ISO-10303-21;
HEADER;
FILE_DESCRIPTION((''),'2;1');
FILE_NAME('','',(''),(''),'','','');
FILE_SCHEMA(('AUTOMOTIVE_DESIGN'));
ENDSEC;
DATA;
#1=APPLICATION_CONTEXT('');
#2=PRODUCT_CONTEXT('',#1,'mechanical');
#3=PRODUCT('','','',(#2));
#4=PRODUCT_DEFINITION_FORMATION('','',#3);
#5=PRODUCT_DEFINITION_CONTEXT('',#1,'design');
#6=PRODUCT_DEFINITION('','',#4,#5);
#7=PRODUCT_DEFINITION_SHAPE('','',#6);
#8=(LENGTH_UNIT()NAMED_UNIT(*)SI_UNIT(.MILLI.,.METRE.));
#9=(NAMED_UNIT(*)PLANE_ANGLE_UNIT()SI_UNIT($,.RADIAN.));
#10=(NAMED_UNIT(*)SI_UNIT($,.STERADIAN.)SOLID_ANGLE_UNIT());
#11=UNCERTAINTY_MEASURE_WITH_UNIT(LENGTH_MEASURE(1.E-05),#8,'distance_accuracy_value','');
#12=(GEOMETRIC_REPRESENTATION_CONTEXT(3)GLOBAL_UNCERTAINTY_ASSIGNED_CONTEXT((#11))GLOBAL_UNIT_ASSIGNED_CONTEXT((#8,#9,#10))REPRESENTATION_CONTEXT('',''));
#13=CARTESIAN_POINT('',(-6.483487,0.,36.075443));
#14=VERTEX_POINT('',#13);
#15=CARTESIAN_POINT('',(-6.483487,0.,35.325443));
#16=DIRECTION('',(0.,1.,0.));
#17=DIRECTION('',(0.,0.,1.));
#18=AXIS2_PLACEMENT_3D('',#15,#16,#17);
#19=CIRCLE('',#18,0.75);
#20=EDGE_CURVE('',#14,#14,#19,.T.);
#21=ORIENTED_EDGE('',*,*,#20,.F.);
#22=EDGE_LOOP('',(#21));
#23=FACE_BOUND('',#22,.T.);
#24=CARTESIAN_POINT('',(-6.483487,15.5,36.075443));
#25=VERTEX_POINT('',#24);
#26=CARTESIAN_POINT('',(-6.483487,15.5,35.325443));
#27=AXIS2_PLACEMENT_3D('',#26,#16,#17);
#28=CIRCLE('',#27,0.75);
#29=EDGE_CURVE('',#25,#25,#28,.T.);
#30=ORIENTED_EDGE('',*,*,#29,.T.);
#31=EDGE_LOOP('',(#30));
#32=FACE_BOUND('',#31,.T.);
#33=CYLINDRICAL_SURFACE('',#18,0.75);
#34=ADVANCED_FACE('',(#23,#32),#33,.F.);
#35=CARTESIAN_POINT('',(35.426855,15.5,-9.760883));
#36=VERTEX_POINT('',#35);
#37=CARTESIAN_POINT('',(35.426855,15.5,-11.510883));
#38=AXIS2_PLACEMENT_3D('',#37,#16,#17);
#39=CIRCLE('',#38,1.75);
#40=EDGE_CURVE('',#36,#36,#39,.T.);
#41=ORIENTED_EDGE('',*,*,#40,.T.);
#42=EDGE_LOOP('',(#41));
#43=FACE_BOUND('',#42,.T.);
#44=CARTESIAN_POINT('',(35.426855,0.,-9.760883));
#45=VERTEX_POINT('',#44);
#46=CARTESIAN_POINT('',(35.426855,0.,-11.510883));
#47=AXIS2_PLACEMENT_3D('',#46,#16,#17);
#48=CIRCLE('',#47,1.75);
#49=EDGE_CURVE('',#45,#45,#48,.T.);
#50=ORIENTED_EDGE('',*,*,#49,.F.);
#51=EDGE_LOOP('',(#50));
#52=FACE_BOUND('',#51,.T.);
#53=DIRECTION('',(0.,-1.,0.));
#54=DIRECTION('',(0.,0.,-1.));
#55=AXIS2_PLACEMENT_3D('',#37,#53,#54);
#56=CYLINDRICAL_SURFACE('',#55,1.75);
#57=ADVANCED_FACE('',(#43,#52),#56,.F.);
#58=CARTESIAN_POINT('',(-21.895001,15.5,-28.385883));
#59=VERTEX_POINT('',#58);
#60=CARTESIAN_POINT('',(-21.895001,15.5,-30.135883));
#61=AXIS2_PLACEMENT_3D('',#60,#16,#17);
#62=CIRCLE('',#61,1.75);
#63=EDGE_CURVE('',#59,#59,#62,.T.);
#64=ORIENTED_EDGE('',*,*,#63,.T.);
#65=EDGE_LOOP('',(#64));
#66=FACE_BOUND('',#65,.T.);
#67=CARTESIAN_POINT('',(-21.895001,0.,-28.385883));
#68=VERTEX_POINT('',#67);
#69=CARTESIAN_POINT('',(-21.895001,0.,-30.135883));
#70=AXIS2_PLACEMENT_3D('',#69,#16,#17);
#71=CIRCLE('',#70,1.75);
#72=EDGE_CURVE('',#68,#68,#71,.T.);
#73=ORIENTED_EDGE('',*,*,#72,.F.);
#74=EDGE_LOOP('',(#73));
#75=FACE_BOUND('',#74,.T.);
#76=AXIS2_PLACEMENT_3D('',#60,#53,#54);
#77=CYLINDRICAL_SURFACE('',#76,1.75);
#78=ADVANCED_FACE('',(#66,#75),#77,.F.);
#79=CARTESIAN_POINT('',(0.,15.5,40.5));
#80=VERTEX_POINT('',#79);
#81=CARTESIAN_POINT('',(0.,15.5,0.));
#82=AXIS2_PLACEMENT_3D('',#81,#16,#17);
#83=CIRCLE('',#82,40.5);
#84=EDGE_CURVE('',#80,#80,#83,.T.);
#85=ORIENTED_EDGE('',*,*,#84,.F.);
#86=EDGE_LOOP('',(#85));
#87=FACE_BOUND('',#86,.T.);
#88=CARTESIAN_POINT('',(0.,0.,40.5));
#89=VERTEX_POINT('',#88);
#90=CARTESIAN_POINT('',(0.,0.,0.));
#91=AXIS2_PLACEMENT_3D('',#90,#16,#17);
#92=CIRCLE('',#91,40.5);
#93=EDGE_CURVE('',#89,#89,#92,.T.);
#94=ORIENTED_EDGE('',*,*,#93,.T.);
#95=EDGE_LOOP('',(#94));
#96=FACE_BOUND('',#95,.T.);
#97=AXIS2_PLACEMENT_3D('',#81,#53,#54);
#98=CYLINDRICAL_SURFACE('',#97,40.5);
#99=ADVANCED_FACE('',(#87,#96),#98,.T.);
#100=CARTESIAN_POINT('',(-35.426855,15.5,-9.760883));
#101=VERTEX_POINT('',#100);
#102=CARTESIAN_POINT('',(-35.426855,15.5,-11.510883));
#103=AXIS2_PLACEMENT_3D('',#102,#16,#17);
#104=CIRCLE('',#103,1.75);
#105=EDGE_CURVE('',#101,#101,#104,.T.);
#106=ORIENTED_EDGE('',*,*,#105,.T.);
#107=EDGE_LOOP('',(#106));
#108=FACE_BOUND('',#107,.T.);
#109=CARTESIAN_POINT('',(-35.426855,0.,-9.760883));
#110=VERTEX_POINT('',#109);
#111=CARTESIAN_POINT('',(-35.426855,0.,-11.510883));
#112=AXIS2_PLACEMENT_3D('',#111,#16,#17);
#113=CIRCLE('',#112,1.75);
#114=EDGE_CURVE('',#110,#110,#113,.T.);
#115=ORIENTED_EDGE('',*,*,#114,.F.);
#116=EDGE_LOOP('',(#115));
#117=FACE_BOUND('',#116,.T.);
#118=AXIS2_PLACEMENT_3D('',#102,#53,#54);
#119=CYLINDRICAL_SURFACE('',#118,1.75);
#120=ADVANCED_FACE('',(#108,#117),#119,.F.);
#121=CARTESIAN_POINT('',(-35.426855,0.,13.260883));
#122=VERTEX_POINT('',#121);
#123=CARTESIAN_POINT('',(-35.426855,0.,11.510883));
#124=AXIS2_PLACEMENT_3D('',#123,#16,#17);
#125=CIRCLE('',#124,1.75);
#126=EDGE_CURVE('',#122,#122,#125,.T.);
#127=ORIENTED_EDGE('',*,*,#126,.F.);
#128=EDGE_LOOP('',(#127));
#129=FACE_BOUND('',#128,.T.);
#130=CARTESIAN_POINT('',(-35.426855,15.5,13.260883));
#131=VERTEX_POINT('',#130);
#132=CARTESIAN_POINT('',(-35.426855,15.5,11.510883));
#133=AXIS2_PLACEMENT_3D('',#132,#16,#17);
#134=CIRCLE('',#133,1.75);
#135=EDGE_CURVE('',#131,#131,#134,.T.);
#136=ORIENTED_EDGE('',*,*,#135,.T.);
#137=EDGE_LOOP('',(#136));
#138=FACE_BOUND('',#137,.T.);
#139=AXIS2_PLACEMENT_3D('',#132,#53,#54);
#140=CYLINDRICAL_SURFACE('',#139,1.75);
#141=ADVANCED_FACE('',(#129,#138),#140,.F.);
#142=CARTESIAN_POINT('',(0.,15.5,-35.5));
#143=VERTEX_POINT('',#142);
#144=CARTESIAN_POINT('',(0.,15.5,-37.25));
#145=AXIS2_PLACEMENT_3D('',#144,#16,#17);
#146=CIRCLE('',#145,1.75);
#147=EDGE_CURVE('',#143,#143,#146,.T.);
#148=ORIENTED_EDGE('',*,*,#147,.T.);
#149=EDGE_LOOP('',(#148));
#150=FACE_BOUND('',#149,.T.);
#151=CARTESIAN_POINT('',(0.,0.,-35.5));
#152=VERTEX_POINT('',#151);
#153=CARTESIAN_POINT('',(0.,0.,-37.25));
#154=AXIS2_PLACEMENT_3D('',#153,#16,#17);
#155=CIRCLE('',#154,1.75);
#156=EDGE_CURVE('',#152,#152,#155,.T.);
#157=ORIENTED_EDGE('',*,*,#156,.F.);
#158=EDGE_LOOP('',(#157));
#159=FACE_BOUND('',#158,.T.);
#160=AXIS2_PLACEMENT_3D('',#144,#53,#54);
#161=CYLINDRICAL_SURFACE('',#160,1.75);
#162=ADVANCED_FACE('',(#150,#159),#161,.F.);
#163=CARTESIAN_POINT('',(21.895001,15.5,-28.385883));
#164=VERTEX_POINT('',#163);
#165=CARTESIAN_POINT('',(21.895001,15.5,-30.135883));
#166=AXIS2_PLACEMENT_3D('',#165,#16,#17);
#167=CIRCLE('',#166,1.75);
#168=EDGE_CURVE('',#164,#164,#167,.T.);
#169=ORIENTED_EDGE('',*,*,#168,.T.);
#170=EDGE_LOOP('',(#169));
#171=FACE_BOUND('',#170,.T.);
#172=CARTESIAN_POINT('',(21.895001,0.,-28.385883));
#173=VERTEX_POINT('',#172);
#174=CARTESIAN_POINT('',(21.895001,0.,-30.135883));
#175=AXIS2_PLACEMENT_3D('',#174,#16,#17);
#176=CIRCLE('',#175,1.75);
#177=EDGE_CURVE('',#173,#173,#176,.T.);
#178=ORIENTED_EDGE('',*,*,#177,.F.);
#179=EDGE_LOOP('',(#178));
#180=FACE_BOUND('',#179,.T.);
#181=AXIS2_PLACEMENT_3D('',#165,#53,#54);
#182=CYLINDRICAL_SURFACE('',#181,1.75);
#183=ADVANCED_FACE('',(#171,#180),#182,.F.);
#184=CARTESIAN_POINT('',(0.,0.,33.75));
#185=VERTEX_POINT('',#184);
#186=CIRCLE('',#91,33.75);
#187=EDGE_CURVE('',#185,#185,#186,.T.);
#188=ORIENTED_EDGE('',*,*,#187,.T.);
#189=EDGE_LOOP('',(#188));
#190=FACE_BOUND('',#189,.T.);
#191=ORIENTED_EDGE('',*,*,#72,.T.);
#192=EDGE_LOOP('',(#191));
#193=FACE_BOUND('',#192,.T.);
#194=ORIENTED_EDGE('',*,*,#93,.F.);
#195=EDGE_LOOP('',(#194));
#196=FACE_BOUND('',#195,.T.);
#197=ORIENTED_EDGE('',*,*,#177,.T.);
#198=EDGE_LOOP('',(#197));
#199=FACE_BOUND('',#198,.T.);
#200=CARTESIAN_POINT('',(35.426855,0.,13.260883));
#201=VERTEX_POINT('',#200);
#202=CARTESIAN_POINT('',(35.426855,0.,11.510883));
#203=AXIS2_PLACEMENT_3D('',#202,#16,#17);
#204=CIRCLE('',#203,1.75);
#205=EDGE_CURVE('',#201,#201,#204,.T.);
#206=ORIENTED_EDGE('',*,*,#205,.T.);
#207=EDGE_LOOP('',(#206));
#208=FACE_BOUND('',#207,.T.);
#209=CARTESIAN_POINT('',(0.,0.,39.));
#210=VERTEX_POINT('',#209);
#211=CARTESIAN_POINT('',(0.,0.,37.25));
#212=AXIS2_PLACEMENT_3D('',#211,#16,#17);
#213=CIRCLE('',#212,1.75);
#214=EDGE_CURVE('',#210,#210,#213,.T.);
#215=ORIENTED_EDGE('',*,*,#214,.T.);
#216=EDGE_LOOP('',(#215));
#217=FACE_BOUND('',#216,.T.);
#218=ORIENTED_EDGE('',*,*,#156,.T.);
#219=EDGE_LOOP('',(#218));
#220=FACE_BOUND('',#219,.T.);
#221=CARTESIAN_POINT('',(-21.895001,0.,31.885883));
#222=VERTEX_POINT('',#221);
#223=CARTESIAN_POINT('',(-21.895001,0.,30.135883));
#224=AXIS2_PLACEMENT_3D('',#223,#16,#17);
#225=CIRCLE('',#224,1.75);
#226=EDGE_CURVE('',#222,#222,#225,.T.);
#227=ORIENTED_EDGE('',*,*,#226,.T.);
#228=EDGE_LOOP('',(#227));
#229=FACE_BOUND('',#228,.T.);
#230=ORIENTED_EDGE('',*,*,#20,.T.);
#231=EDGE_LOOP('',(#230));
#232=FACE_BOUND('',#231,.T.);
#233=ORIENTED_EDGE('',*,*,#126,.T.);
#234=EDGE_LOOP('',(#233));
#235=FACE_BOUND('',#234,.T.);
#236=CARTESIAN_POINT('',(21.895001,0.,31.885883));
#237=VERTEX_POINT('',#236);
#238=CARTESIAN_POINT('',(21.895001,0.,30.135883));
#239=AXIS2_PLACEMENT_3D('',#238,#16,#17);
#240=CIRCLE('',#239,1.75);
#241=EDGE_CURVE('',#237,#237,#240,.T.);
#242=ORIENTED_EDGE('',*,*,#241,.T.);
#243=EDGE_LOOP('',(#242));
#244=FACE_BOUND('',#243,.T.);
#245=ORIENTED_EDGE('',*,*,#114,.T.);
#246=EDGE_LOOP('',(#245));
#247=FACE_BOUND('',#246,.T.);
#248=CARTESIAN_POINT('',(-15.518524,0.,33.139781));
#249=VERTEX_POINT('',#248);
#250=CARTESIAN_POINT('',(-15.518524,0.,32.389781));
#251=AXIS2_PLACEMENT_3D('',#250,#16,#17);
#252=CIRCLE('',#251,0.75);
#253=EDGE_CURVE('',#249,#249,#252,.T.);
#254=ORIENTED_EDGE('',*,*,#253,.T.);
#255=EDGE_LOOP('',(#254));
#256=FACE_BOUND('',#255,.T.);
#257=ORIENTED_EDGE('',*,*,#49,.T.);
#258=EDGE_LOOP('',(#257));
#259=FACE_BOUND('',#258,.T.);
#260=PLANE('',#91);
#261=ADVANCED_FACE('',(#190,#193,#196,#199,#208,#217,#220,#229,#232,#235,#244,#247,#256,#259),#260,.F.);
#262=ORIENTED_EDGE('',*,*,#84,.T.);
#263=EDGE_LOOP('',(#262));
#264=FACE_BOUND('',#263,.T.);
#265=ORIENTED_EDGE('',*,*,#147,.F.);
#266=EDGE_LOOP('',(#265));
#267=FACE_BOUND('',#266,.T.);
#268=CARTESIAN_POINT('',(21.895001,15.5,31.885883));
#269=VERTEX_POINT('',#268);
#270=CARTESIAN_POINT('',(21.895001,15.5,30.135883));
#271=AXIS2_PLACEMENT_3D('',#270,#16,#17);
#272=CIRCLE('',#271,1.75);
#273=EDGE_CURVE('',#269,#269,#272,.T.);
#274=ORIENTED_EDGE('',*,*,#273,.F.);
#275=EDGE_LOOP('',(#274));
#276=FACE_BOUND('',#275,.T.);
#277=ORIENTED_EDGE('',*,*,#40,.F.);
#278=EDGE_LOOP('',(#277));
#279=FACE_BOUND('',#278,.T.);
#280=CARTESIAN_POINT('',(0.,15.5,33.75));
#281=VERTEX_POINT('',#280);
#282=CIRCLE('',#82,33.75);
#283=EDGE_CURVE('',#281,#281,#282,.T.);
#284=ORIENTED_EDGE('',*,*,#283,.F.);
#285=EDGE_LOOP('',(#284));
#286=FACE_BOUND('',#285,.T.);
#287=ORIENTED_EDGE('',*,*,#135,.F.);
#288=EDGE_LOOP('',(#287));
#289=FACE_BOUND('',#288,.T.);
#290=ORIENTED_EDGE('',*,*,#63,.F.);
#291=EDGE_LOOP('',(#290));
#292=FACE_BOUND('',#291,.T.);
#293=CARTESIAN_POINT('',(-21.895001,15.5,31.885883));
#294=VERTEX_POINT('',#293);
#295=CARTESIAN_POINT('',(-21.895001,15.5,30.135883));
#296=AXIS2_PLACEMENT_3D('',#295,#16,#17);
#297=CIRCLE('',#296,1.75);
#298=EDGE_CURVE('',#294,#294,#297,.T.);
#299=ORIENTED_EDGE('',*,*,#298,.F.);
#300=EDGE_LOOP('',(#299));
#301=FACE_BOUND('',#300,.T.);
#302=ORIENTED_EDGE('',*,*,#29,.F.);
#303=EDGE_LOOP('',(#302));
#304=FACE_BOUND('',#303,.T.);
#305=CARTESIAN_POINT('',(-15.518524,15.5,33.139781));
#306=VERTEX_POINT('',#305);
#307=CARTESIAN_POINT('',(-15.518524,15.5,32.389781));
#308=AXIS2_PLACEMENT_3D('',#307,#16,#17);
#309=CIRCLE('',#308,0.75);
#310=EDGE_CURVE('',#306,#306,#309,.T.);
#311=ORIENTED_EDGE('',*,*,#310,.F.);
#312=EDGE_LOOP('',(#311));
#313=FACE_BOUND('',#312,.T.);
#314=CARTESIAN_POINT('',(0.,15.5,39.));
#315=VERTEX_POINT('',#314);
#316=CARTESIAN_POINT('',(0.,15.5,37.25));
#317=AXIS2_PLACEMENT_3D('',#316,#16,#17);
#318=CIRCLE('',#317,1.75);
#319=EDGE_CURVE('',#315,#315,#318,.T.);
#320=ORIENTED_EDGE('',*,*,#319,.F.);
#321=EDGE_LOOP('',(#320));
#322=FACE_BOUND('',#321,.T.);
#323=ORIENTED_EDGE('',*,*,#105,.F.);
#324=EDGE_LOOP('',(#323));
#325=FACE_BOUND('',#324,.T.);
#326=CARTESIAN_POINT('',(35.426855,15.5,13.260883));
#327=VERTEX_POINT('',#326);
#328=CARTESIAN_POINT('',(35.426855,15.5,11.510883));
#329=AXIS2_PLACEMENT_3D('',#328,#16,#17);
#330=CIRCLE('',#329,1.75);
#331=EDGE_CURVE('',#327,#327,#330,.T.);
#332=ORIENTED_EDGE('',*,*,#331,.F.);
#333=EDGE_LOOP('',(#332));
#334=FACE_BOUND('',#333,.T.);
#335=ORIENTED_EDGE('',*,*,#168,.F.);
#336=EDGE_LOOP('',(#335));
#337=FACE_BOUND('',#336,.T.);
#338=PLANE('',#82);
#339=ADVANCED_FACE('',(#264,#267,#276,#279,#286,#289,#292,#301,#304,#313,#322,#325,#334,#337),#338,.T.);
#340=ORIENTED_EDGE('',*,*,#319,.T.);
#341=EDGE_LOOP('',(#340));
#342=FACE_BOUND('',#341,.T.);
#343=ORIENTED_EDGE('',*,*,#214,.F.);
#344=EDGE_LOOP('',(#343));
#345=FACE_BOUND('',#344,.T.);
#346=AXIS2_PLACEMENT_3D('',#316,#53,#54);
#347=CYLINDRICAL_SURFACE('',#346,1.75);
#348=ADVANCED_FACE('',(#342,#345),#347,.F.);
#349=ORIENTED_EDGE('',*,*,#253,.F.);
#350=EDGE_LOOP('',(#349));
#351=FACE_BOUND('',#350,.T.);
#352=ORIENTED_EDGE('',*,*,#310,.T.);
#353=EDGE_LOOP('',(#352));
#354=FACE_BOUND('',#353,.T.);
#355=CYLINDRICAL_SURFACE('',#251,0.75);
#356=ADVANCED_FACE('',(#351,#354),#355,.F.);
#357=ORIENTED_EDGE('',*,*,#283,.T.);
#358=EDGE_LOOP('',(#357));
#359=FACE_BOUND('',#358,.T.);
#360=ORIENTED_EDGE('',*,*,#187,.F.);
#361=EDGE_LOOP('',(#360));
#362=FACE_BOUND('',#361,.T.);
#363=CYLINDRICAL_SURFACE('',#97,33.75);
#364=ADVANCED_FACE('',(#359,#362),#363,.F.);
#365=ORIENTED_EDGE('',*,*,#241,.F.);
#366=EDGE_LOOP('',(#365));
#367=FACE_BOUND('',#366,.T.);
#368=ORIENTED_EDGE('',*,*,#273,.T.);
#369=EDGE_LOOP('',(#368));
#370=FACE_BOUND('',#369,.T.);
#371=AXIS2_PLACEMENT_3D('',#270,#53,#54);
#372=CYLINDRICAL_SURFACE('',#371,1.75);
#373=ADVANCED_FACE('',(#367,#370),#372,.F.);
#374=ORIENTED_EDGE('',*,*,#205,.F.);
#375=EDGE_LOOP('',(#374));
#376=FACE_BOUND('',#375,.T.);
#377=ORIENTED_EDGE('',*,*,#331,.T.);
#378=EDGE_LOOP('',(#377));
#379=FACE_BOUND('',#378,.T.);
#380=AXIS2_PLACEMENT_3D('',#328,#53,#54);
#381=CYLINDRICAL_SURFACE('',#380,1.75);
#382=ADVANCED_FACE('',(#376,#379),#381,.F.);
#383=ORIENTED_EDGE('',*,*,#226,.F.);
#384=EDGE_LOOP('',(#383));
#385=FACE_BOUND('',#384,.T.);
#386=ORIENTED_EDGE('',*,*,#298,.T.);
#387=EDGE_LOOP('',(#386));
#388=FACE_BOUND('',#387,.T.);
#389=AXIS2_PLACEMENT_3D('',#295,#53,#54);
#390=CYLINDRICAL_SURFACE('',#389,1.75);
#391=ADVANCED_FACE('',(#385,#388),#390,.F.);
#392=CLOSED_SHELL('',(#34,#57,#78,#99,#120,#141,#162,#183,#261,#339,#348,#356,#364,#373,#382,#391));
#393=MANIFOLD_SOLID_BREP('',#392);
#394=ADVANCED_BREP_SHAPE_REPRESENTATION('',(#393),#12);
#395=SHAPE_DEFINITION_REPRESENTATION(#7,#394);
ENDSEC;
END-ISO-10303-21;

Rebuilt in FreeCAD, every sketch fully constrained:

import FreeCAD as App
import Part
import Sketcher
Q = App.Units.Quantity

doc = App.newDocument("Part")
body = doc.addObject("PartDesign::Body", "Body")

sketch1 = body.newObject("Sketcher::SketchObject", "Sketch")
sketch1.AttachmentSupport = (doc.getObject("XZ_Plane"), [""])
sketch1.MapMode = "FlatFace"
sketch1.addGeometry([
    Part.Circle(App.Vector(0, 0, 0), App.Vector(0, 0, 1), 40.5),
    Part.Circle(App.Vector(-21.9, -30.1, 0), App.Vector(0, 0, 1), 1.8),
    Part.Circle(App.Vector(-35.4, -11.5, 0), App.Vector(0, 0, 1), 1.8),
    Part.Circle(App.Vector(0, -37.2, 0), App.Vector(0, 0, 1), 1.8),
    Part.Circle(App.Vector(-35.4, 11.5, 0), App.Vector(0, 0, 1), 1.8),
    Part.Circle(App.Vector(-21.9, 30.1, 0), App.Vector(0, 0, 1), 1.8),
    Part.Circle(App.Vector(21.9, -30.1, 0), App.Vector(0, 0, 1), 1.8),
    Part.Circle(App.Vector(35.4, -11.5, 0), App.Vector(0, 0, 1), 1.8),
    Part.Circle(App.Vector(0, 0, 0), App.Vector(0, 0, 1), 33.8),
    Part.Circle(App.Vector(0, 37.2, 0), App.Vector(0, 0, 1), 1.8),
    Part.Circle(App.Vector(35.4, 11.5, 0), App.Vector(0, 0, 1), 1.8),
    Part.Circle(App.Vector(21.9, 30.1, 0), App.Vector(0, 0, 1), 1.8),
], False)
sketch1.addConstraint([
    Sketcher.Constraint("Coincident", 0, 3, -1, 1),
    Sketcher.Constraint("Coincident", 8, 3, -1, 1),
    Sketcher.Constraint("Equal", 1, 2),
    Sketcher.Constraint("Equal", 2, 3),
    Sketcher.Constraint("Equal", 3, 4),
    Sketcher.Constraint("Equal", 4, 5),
    Sketcher.Constraint("Equal", 5, 6),
    Sketcher.Constraint("Equal", 6, 7),
    Sketcher.Constraint("Equal", 7, 9),
    Sketcher.Constraint("Equal", 9, 10),
    Sketcher.Constraint("Equal", 10, 11),
    Sketcher.Constraint("Symmetric", 5, 3, 6, 3, -1, 1),
    Sketcher.Constraint("Symmetric", 4, 3, 7, 3, -1, 1),
    Sketcher.Constraint("Symmetric", 3, 3, 9, 3, -1, 1),
    Sketcher.Constraint("Symmetric", 2, 3, 10, 3, -1, 1),
    Sketcher.Constraint("Symmetric", 1, 3, 11, 3, -1, 1),
    Sketcher.Constraint("Symmetric", 1, 3, 6, 3, -2),
    Sketcher.Constraint("Symmetric", 2, 3, 7, 3, -2),
    Sketcher.Constraint("PointOnObject", 3, 3, -2),
    Sketcher.Constraint("Diameter", 0, Q("81 mm")),
    Sketcher.Constraint("Diameter", 1, Q("3.5 mm")),
    Sketcher.Constraint("Diameter", 8, Q("67.5 mm")),
    Sketcher.Constraint("DistanceY", 3, 3, -1, 1, Q("37.25 mm")),
    Sketcher.Constraint("DistanceX", 1, 3, 6, 3, Q("43.790001 mm")),
    Sketcher.Constraint("DistanceY", 1, 3, 2, 3, Q("18.625 mm")),
    Sketcher.Constraint("DistanceY", 1, 3, -1, 1, Q("30.135883 mm")),
    Sketcher.Constraint("DistanceX", 2, 3, -1, 1, Q("35.426855 mm")),
])
pad1 = body.newObject("PartDesign::Pad", "Pad")
pad1.Profile = sketch1
pad1.Length = 15.5
pad1.Reversed = True

sketch2 = body.newObject("Sketcher::SketchObject", "Sketch001")
sketch2.AttachmentSupport = (doc.getObject("XZ_Plane"), [""])
sketch2.MapMode = "FlatFace"
sketch2.AttachmentOffset = App.Placement(App.Vector(0, 0, -15.5), App.Rotation())
sketch2.addGeometry([
    Part.Circle(App.Vector(-6.5, 35.3, 0), App.Vector(0, 0, 1), 0.8),
    Part.Circle(App.Vector(-15.5, 32.4, 0), App.Vector(0, 0, 1), 0.8),
], False)
sketch2.addConstraint([
    Sketcher.Constraint("Equal", 0, 1),
    Sketcher.Constraint("Diameter", 0, Q("1.5 mm")),
    Sketcher.Constraint("DistanceY", -1, 1, 1, 3, Q("32.389781 mm")),
    Sketcher.Constraint("DistanceY", 1, 3, 0, 3, Q("2.935661 mm")),
    Sketcher.Constraint("DistanceX", 0, 3, -1, 1, Q("6.483487 mm")),
    Sketcher.Constraint("DistanceX", 1, 3, -1, 1, Q("15.518524 mm")),
])
pocket1 = body.newObject("PartDesign::Pocket", "Pocket")
pocket1.Profile = sketch2
pocket1.Type = "ThroughAll"
pocket1.Reversed = True

doc.recompute()
